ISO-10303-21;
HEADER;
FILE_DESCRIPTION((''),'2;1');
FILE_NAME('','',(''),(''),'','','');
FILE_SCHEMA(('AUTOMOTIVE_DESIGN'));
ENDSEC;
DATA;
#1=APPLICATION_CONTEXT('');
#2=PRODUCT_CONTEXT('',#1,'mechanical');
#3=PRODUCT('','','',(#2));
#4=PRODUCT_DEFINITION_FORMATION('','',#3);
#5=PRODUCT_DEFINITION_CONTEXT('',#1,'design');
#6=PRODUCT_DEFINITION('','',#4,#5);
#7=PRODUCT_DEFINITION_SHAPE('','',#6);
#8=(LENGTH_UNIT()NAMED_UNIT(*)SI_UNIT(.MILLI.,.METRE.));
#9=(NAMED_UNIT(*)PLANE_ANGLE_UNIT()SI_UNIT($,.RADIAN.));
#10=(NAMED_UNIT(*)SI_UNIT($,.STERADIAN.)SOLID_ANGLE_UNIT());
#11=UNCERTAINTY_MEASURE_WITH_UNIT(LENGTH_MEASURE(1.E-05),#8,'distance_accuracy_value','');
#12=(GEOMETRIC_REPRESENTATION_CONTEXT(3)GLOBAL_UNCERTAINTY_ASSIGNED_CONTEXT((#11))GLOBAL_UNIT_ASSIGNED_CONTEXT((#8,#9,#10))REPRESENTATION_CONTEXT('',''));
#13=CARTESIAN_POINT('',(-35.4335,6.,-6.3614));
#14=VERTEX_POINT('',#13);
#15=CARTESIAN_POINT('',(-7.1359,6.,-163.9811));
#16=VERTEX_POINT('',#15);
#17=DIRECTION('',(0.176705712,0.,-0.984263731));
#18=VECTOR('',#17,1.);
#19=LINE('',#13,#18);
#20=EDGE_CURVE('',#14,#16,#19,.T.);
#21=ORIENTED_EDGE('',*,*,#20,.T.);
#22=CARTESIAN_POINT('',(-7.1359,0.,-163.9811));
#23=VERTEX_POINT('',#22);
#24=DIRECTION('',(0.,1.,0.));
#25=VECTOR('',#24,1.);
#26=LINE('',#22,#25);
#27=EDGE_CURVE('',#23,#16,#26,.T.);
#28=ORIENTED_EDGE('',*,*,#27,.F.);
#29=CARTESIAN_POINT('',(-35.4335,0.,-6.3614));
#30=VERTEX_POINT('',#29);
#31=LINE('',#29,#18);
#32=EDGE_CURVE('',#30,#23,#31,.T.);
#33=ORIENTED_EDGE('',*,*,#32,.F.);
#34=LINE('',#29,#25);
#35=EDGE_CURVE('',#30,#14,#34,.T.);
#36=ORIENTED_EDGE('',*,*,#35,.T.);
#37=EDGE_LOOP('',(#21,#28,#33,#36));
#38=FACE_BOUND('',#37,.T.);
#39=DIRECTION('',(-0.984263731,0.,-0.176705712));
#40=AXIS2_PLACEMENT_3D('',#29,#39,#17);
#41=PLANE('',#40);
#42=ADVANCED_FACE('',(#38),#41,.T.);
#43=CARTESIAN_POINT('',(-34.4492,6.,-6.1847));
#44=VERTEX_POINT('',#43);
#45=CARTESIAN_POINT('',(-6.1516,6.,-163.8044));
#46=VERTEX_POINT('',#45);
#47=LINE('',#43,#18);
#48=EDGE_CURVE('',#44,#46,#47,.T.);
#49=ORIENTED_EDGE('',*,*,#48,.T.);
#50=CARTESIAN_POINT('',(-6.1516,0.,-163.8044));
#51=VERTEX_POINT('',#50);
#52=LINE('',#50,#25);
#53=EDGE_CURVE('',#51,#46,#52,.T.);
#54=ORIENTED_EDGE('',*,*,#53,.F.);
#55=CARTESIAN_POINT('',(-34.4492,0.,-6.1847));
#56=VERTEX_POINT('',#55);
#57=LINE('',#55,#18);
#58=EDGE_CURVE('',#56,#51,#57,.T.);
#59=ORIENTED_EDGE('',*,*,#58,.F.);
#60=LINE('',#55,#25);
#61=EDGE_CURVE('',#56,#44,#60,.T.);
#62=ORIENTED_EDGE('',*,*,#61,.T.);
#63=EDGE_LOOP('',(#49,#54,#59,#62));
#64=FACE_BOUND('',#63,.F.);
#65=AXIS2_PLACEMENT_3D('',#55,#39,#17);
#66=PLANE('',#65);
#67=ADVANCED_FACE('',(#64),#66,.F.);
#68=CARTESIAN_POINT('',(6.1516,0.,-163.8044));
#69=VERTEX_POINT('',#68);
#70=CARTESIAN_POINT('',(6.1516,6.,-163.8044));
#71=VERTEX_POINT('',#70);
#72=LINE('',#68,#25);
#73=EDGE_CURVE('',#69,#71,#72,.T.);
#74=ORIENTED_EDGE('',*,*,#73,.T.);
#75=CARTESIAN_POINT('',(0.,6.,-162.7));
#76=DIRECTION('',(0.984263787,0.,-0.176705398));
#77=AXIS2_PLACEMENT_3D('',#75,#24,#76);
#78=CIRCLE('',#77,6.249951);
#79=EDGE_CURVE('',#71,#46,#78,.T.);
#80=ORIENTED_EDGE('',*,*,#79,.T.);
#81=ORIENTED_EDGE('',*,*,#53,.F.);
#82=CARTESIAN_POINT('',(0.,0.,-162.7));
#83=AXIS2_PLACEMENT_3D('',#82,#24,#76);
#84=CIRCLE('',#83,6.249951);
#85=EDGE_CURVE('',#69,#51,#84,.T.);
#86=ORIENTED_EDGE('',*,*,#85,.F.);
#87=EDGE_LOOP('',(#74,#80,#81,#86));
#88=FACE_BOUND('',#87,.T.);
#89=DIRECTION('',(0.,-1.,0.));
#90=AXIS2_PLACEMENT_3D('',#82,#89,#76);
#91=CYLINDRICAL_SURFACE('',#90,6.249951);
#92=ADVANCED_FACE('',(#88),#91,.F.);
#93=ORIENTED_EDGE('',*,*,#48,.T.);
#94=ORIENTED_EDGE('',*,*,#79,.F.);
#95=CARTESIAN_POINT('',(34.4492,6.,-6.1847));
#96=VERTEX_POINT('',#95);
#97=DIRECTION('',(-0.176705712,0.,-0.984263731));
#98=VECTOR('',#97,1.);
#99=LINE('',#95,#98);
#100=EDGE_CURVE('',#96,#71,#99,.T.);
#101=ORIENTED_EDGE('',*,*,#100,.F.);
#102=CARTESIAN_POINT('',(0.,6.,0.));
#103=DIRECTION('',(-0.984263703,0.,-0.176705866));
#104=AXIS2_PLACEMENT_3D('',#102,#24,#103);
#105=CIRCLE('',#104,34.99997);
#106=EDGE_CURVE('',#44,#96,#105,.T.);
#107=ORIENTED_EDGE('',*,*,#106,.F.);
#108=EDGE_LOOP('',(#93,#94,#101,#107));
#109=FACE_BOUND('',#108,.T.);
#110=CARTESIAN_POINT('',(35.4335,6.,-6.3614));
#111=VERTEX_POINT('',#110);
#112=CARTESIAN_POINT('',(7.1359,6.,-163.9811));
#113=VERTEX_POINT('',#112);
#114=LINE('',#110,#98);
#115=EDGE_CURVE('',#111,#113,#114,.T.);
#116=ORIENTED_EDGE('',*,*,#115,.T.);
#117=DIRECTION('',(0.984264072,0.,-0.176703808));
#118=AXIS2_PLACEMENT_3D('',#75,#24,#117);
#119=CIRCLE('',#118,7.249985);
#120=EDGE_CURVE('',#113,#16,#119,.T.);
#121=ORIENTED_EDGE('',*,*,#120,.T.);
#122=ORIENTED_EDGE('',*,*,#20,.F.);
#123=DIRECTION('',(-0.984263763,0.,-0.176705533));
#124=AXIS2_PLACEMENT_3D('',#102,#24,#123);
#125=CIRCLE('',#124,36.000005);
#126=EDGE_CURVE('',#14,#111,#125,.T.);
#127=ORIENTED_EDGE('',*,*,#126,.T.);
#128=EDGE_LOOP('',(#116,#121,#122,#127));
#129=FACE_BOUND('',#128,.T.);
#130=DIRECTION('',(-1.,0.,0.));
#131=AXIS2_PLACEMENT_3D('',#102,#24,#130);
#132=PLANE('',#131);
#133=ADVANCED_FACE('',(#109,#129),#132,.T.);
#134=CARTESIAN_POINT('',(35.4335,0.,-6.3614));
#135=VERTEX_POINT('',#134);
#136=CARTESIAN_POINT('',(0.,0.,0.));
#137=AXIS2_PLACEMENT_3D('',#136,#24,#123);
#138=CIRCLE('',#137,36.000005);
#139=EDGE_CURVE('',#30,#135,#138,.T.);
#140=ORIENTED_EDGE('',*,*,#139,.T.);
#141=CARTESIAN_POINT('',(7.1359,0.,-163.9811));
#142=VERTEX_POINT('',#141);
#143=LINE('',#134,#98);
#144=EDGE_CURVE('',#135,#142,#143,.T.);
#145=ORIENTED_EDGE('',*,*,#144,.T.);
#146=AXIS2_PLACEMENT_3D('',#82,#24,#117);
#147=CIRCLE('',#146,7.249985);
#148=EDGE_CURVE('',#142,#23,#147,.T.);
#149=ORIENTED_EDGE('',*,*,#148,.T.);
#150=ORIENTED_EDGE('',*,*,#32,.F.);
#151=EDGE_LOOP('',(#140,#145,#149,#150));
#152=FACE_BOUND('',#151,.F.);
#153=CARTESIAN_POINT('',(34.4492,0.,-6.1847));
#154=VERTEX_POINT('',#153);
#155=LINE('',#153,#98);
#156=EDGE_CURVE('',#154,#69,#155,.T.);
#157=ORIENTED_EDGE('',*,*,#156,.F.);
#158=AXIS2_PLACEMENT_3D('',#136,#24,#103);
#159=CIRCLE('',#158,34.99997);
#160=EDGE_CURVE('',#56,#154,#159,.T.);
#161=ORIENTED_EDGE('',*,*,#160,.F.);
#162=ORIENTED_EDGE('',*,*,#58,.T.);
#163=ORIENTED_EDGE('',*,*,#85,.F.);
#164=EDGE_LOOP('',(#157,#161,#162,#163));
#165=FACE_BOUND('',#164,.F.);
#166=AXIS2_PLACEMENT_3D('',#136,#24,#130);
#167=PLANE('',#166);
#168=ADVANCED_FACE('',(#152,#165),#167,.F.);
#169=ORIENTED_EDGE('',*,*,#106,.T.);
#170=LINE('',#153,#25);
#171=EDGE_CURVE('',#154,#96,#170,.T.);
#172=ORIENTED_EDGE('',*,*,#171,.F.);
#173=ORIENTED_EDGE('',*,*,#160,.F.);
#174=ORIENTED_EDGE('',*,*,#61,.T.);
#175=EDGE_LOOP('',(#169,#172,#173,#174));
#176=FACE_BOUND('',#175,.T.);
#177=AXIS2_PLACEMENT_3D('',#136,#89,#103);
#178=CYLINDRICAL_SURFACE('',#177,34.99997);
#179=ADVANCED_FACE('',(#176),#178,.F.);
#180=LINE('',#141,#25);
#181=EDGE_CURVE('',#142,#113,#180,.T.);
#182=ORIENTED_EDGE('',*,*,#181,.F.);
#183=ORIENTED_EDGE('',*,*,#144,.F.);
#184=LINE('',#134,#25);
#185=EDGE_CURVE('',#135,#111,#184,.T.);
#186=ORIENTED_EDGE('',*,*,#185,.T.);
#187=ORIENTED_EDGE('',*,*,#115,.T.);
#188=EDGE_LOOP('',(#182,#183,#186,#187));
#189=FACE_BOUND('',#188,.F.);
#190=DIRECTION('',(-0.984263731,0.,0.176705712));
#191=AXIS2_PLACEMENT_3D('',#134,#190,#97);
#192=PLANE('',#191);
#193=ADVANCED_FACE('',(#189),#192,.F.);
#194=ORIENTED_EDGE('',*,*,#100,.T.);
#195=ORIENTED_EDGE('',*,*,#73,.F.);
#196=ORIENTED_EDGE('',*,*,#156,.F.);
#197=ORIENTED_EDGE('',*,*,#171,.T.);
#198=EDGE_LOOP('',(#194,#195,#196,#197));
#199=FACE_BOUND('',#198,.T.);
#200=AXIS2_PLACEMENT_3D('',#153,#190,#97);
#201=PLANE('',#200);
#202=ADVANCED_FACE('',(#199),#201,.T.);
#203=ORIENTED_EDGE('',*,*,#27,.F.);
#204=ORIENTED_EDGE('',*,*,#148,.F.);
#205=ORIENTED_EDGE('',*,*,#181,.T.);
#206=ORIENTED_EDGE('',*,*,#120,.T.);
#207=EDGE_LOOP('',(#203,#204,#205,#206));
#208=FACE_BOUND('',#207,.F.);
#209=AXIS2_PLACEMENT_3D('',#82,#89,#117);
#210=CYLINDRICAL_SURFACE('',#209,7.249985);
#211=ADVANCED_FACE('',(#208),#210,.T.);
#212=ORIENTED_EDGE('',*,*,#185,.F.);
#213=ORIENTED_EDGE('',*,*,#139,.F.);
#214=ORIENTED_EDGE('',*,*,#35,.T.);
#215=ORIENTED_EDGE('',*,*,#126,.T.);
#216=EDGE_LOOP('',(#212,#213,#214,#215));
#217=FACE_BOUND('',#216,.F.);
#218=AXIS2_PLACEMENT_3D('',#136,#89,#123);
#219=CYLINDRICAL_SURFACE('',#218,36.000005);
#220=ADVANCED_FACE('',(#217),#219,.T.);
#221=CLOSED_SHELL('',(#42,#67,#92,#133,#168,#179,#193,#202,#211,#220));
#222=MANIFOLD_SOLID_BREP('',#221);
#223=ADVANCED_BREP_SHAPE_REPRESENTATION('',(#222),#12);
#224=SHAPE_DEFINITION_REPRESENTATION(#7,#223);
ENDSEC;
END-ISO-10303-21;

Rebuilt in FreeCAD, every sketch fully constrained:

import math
import FreeCAD as App
import Part
import Sketcher
Q = App.Units.Quantity

doc = App.newDocument("Part")
body = doc.addObject("PartDesign::Body", "Body")

# Sketch on XZ plane
sketch1 = body.newObject("Sketcher::SketchObject", "Sketch")
sketch1.AttachmentSupport = (doc.getObject("XZ_Plane"), [""])
sketch1.MapMode = "FlatFace"
sketch1.addGeometry(Part.LineSegment(App.Vector(-7, -164, 0), App.Vector(-35, -6, 0)), False)
sketch1.addGeometry(Part.ArcOfCircle(Part.Circle(App.Vector(0, 0, 0), App.Vector(0, 0, 1), 36), math.radians(-10), math.radians(190)), False)
sketch1.addGeometry(Part.LineSegment(App.Vector(35, -6, 0), App.Vector(7, -164, 0)), False)
sketch1.addGeometry(Part.ArcOfCircle(Part.Circle(App.Vector(0, -163, 0), App.Vector(0, 0, 1), 7), math.radians(-170), math.radians(-10)), False)
sketch1.addGeometry(Part.ArcOfCircle(Part.Circle(App.Vector(0, 0, 0), App.Vector(0, 0, 1), 35), math.radians(-10), math.radians(190)), False)
sketch1.addGeometry(Part.LineSegment(App.Vector(-34, -6, 0), App.Vector(-6, -164, 0)), False)
sketch1.addGeometry(Part.ArcOfCircle(Part.Circle(App.Vector(0, -163, 0), App.Vector(0, 0, 1), 6), math.radians(-170), math.radians(-10)), False)
sketch1.addGeometry(Part.LineSegment(App.Vector(6, -164, 0), App.Vector(34, -6, 0)), False)
sketch1.addConstraint(Sketcher.Constraint("Tangent", 0, 2, 1, 2))
sketch1.addConstraint(Sketcher.Constraint("Tangent", 1, 1, 2, 1))
sketch1.addConstraint(Sketcher.Constraint("Tangent", 2, 2, 3, 2))
sketch1.addConstraint(Sketcher.Constraint("Tangent", 3, 1, 0, 1))
sketch1.addConstraint(Sketcher.Constraint("Tangent", 4, 2, 5, 1))
sketch1.addConstraint(Sketcher.Constraint("Tangent", 5, 2, 6, 1))
sketch1.addConstraint(Sketcher.Constraint("Tangent", 6, 2, 7, 1))
sketch1.addConstraint(Sketcher.Constraint("Tangent", 7, 2, 4, 1))
sketch1.addConstraint(Sketcher.Constraint("Coincident", 1, 3, -1, 1))
sketch1.addConstraint(Sketcher.Constraint("Coincident", 4, 3, -1, 1))
sketch1.addConstraint(Sketcher.Constraint("Coincident", 6, 3, 3, 3))
sketch1.addConstraint(Sketcher.Constraint("PointOnObject", 3, 3, -2))
sketch1.addConstraint(Sketcher.Constraint("Parallel", 0, 5))
sketch1.addConstraint(Sketcher.Constraint("Radius", 1, Q("36 mm")))
sketch1.addConstraint(Sketcher.Constraint("Radius", 4, Q("35 mm")))
sketch1.addConstraint(Sketcher.Constraint("Radius", 3, Q("7.25 mm")))
sketch1.addConstraint(Sketcher.Constraint("DistanceY", 3, 3, -1, 1, Q("162.7 mm")))
pad1 = body.newObject("PartDesign::Pad", "Pad")
pad1.Profile = sketch1
pad1.Length = 6
pad1.Reversed = True

doc.recompute()
